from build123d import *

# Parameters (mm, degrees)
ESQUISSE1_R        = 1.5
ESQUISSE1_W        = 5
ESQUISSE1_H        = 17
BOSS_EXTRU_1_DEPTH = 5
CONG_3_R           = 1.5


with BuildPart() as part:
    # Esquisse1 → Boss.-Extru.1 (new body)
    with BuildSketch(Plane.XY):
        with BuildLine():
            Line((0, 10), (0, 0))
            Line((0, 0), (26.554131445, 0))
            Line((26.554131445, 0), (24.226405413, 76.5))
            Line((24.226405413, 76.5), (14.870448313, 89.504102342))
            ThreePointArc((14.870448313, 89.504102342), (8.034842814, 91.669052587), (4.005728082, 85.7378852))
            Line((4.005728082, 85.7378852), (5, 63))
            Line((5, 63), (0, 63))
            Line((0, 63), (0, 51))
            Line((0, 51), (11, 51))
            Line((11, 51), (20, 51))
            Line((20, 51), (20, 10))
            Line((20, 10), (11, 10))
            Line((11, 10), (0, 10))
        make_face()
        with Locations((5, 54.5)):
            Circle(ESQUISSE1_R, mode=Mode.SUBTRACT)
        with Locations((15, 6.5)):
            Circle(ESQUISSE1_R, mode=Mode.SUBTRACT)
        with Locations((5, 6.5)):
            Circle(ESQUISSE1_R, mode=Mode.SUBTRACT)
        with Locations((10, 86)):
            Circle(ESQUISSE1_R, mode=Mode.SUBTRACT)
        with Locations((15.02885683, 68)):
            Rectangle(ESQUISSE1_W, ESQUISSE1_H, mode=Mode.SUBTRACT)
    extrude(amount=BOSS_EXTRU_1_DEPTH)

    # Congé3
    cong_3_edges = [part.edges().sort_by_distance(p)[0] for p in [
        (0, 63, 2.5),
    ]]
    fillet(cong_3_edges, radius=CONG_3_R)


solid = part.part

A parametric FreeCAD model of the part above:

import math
import FreeCAD as App
import Part
import Sketcher


def edges_at(feature, points):
    """Names of the edges that pass closest to the given points."""
    edges = feature.Shape.Edges
    near = lambda p: min(range(len(edges)), key=lambda i: edges[i].distToShape(Part.Vertex(*p))[0])
    return sorted({f"Edge{near(p) + 1}" for p in points})

doc = App.newDocument("Part")
body = doc.addObject("PartDesign::Body", "Body")

sketch1 = body.newObject("Sketcher::SketchObject", "Sketch")
sketch1.AttachmentSupport = (doc.getObject("XY_Plane"), [""])
sketch1.MapMode = "FlatFace"
sketch1.addGeometry([
    Part.LineSegment(App.Vector(0, 10, 0), App.Vector(0, 0, 0)),
    Part.LineSegment(App.Vector(0, 0, 0), App.Vector(26.6, 0, 0)),
    Part.LineSegment(App.Vector(26.6, 0, 0), App.Vector(24.2, 76.5, 0)),
    Part.LineSegment(App.Vector(24.2, 76.5, 0), App.Vector(14.9, 89.5, 0)),
    Part.ArcOfCircle(Part.Circle(App.Vector(10, 86, 0), App.Vector(0, 0, 1), 6), math.radians(36), math.radians(183)),
    Part.LineSegment(App.Vector(4, 85.7, 0), App.Vector(5, 63, 0)),
    Part.LineSegment(App.Vector(5, 63, 0), App.Vector(0, 63, 0)),
    Part.LineSegment(App.Vector(0, 63, 0), App.Vector(0, 51, 0)),
    Part.LineSegment(App.Vector(0, 51, 0), App.Vector(20, 51, 0)),
    Part.LineSegment(App.Vector(20, 51, 0), App.Vector(20, 10, 0)),
    Part.LineSegment(App.Vector(20, 10, 0), App.Vector(0, 10, 0)),
    Part.Circle(App.Vector(5, 6.5, 0), App.Vector(0, 0, 1), 1.5),
    Part.Circle(App.Vector(15, 6.5, 0), App.Vector(0, 0, 1), 1.5),
    Part.Circle(App.Vector(5, 54.5, 0), App.Vector(0, 0, 1), 1.5),
    Part.Circle(App.Vector(10, 86, 0), App.Vector(0, 0, 1), 1.5),
    Part.LineSegment(App.Vector(17.5, 59.5, 0), App.Vector(12.5, 59.5, 0)),
    Part.LineSegment(App.Vector(12.5, 59.5, 0), App.Vector(12.5, 76.5, 0)),
    Part.LineSegment(App.Vector(12.5, 76.5, 0), App.Vector(17.5, 76.5, 0)),
    Part.LineSegment(App.Vector(17.5, 76.5, 0), App.Vector(17.5, 59.5, 0)),
], False)
sketch1.addConstraint([
    Sketcher.Constraint("Coincident", 0, 2, 1, 1),
    Sketcher.Constraint("Coincident", 1, 2, 2, 1),
    Sketcher.Constraint("Coincident", 2, 2, 3, 1),
    Sketcher.Constraint("Tangent", 3, 2, 4, 1),
    Sketcher.Constraint("Tangent", 4, 2, 5, 1),
    Sketcher.Constraint("Coincident", 5, 2, 6, 1),
    Sketcher.Constraint("Coincident", 6, 2, 7, 1),
    Sketcher.Constraint("Coincident", 7, 2, 8, 1),
    Sketcher.Constraint("Coincident", 8, 2, 9, 1),
    Sketcher.Constraint("Coincident", 9, 2, 10, 1),
    Sketcher.Constraint("Coincident", 10, 2, 0, 1),
    Sketcher.Constraint("Coincident", 15, 2, 16, 1),
    Sketcher.Constraint("Coincident", 16, 2, 17, 1),
    Sketcher.Constraint("Coincident", 17, 2, 18, 1),
    Sketcher.Constraint("Coincident", 18, 2, 15, 1),
    Sketcher.Constraint("Vertical", 0),
    Sketcher.Constraint("Horizontal", 1),
    Sketcher.Constraint("Horizontal", 6),
    Sketcher.Constraint("Vertical", 7),
    Sketcher.Constraint("Horizontal", 8),
    Sketcher.Constraint("Vertical", 9),
    Sketcher.Constraint("Horizontal", 10),
    Sketcher.Constraint("Horizontal", 15),
    Sketcher.Constraint("Vertical", 16),
    Sketcher.Constraint("Horizontal", 17),
    Sketcher.Constraint("Vertical", 18),
    Sketcher.Constraint("Coincident", 0, 2, -1, 1),
    Sketcher.Constraint("Coincident", 14, 3, 4, 3),
    Sketcher.Constraint("Equal", 11, 12),
    Sketcher.Constraint("Equal", 12, 13),
    Sketcher.Constraint("Equal", 13, 14),
    Sketcher.Constraint("PointOnObject", 6, 2, -2),
    Sketcher.Constraint("Horizontal", 11, 3, 12, 3),
    Sketcher.Constraint("Horizontal", 2, 2, 16, 2),
    Sketcher.Constraint("Vertical", 11, 3, 13, 3),
    Sketcher.Constraint("Vertical", 13, 3, 5, 2),
    Sketcher.Constraint("Equal", 6, 15),
    Sketcher.Constraint("Diameter", 11, 3.0),
    Sketcher.Constraint("Radius", 4, 6.0),
    Sketcher.Constraint("DistanceX", 6, 2, 6, 1, 5.0),
    Sketcher.Constraint("DistanceX", 8, 1, 8, 2, 20.0),
    Sketcher.Constraint("DistanceY", 0, 2, 0, 1, 10.0),
    Sketcher.Constraint("DistanceY", 7, 2, 7, 1, 12.0),
    Sketcher.Constraint("DistanceY", 9, 2, 9, 1, 41.0),
    Sketcher.Constraint("DistanceY", 16, 1, 16, 2, 17.0),
    Sketcher.Constraint("DistanceX", -1, 1, 4, 3, 10.0),
    Sketcher.Constraint("DistanceY", -1, 1, 4, 3, 86.0),
    Sketcher.Constraint("DistanceX", -1, 1, 12, 3, 15.0),
    Sketcher.Constraint("DistanceY", 11, 3, 13, 3, 48.0),
    Sketcher.Constraint("DistanceY", 13, 3, 2, 2, 22.0),
    Sketcher.Constraint("DistanceY", -1, 1, 11, 3, 6.5),
    Sketcher.Constraint("DistanceX", 1, 1, 1, 2, 26.554131),
    Sketcher.Constraint("DistanceX", -1, 1, 3, 2, 14.870448),
    Sketcher.Constraint("DistanceX", 16, 2, 2, 2, 11.697549),
])
pad1 = body.newObject("PartDesign::Pad", "Pad")
pad1.Profile = sketch1
pad1.Length = 5
doc.recompute()

fillet = body.newObject("PartDesign::Fillet", "Fillet")
fillet.Base = (pad1, edges_at(pad1, [(0, 63, 2.5)]))
fillet.Radius = 1.5

doc.recompute()
